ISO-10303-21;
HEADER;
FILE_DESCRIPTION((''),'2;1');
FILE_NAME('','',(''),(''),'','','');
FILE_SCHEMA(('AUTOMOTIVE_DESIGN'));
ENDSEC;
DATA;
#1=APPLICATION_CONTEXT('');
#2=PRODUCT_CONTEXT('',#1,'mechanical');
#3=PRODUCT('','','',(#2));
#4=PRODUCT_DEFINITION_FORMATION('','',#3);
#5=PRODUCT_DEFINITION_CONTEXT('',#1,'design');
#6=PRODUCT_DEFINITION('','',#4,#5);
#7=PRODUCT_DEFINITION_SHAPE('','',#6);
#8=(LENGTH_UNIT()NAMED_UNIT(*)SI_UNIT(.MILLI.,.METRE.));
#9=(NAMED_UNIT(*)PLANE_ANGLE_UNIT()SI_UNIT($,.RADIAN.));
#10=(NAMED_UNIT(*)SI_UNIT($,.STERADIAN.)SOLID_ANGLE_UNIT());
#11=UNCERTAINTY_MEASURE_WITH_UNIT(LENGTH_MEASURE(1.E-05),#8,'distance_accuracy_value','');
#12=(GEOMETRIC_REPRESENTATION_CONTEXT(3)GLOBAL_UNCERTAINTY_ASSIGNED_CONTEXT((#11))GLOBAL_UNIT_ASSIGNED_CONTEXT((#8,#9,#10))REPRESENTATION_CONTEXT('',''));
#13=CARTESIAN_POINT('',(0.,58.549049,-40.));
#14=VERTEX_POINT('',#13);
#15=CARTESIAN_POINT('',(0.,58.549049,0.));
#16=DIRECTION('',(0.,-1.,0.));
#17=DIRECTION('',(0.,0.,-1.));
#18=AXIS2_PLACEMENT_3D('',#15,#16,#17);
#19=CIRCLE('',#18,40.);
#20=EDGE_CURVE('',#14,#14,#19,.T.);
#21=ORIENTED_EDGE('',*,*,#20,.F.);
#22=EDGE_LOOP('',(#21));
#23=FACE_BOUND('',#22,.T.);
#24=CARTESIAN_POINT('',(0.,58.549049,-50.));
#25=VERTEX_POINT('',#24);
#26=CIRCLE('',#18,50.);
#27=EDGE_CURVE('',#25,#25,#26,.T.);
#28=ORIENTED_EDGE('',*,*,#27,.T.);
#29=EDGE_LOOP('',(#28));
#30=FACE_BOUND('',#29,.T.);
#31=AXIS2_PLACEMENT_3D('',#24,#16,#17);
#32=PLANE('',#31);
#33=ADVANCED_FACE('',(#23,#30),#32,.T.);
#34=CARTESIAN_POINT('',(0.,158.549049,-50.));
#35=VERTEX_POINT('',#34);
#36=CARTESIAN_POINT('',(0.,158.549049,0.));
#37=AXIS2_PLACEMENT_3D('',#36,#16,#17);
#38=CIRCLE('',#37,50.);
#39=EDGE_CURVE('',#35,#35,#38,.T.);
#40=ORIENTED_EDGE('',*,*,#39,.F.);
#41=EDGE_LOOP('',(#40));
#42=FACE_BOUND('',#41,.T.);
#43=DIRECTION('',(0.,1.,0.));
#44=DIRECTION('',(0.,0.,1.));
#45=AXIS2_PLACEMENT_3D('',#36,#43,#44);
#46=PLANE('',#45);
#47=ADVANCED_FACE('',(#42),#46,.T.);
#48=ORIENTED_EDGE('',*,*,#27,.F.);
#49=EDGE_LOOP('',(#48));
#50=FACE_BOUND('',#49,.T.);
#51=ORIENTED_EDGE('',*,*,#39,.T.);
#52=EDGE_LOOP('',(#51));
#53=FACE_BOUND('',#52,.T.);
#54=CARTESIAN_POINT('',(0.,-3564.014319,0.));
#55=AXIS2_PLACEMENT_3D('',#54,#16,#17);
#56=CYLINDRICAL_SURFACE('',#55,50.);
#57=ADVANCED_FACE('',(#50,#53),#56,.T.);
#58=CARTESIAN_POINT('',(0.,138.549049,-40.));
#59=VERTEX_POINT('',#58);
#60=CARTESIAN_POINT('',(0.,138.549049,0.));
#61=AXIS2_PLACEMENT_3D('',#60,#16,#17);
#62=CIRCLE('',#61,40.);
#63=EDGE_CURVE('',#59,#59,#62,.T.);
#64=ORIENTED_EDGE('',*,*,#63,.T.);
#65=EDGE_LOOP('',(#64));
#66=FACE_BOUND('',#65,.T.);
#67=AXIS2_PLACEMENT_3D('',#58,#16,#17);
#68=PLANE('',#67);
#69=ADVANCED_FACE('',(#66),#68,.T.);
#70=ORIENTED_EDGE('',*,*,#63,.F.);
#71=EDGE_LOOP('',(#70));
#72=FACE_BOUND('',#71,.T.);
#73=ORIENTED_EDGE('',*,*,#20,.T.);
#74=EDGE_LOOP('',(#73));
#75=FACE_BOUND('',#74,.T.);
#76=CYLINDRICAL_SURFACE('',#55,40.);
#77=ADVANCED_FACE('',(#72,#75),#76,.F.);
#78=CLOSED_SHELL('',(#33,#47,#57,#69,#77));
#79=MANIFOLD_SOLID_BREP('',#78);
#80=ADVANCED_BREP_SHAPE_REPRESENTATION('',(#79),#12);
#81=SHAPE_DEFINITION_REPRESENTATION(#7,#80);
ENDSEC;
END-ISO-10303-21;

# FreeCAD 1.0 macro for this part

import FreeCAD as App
import Part
import Sketcher
from FreeCAD import Vector
Q = App.Units.Quantity

doc = App.newDocument("Part")
params = doc.addObject("Spreadsheet::Sheet", "Params")
for row, (alias, value) in enumerate([
    ("sketch1_width", "20 mm"),
    ("sketch1_width2", "80 mm"),
    ("sketch1_height", "50 mm"),
    ("sketch1_height2", "40 mm"),
    ("revolution_angle", "360 deg"),
], start=1):
    params.set(f"A{row}", alias)
    params.set(f"B{row}", "=" + value)
    params.setAlias(f"B{row}", alias)

body = doc.addObject("PartDesign::Body", "Body")

sketch1 = body.newObject("Sketcher::SketchObject", "Sketch")
sketch1.AttachmentSupport = (doc.getObject("YZ_Plane"), [""])
sketch1.MapMode = "FlatFace"
sketch1.addGeometry(Part.LineSegment(Vector(158.549049, -50, 0), Vector(158.549049, 0, 0)), False)
sketch1.addGeometry(Part.LineSegment(Vector(158.549049, 0, 0), Vector(138.549049, 0, 0)), False)
sketch1.addGeometry(Part.LineSegment(Vector(138.549049, 0, 0), Vector(138.549049, -40, 0)), False)
sketch1.addGeometry(Part.LineSegment(Vector(138.549049, -40, 0), Vector(58.549049, -40, 0)), False)
sketch1.addGeometry(Part.LineSegment(Vector(58.549049, -40, 0), Vector(58.549049, -50, 0)), False)
sketch1.addGeometry(Part.LineSegment(Vector(58.549049, -50, 0), Vector(158.549049, -50, 0)), False)
sketch1.addConstraint(Sketcher.Constraint("Coincident", 0, 2, 1, 1))
sketch1.addConstraint(Sketcher.Constraint("Coincident", 1, 2, 2, 1))
sketch1.addConstraint(Sketcher.Constraint("Coincident", 2, 2, 3, 1))
sketch1.addConstraint(Sketcher.Constraint("Coincident", 3, 2, 4, 1))
sketch1.addConstraint(Sketcher.Constraint("Coincident", 4, 2, 5, 1))
sketch1.addConstraint(Sketcher.Constraint("Coincident", 5, 2, 0, 1))
sketch1.addConstraint(Sketcher.Constraint("Vertical", 0))
sketch1.addConstraint(Sketcher.Constraint("Horizontal", 1))
sketch1.addConstraint(Sketcher.Constraint("Vertical", 2))
sketch1.addConstraint(Sketcher.Constraint("Horizontal", 3))
sketch1.addConstraint(Sketcher.Constraint("Vertical", 4))
sketch1.addConstraint(Sketcher.Constraint("Horizontal", 5))
sketch1.addConstraint(Sketcher.Constraint("PointOnObject", 0, 2, -1))
sketch1.addConstraint(Sketcher.Constraint("DistanceX", 1, 2, 1, 1, Q("20 mm")))
sketch1.addConstraint(Sketcher.Constraint("DistanceX", 3, 2, 3, 1, Q("80 mm")))
sketch1.addConstraint(Sketcher.Constraint("DistanceY", 0, 1, 0, 2, Q("50 mm")))
sketch1.addConstraint(Sketcher.Constraint("DistanceY", 2, 2, 2, 1, Q("40 mm")))
sketch1.addConstraint(Sketcher.Constraint("DistanceX", -1, 1, 0, 2, Q("158.549049 mm")))
sketch1.setExpression("Constraints[13]", "Params.sketch1_width")
sketch1.setExpression("Constraints[14]", "Params.sketch1_width2")
sketch1.setExpression("Constraints[15]", "Params.sketch1_height")
sketch1.setExpression("Constraints[16]", "Params.sketch1_height2")
revolution = body.newObject("PartDesign::Revolution", "Revolution")
revolution.Profile = sketch1
revolution.ReferenceAxis = (sketch1, ["H_Axis"])
revolution.setExpression("Angle", "Params.revolution_angle")

doc.recompute()
